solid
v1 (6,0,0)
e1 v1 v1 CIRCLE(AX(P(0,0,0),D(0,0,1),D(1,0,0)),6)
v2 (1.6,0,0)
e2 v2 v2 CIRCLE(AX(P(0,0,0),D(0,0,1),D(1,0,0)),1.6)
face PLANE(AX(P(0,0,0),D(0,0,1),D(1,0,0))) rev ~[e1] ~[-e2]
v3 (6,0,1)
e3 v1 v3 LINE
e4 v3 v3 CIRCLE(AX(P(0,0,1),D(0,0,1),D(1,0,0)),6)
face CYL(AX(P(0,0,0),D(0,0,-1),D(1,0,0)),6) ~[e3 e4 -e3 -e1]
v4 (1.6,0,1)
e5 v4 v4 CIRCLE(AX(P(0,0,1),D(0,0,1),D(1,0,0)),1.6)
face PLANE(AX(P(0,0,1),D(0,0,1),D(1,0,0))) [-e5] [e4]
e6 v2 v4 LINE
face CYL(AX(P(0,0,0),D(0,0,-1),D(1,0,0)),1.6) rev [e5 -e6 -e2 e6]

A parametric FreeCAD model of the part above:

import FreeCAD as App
import Part
import Sketcher

V = App.Vector

doc = App.newDocument("Part")
body = doc.addObject("PartDesign::Body", "Body")

# Sketch on XY plane
sketch1 = body.newObject("Sketcher::SketchObject", "Sketch")
sketch1.AttachmentSupport = (doc.getObject("XY_Plane"), [""])
sketch1.MapMode = "FlatFace"
sketch1.addGeometry(Part.Circle(V(0, 0, 0), V(0, 0, 1), 6), False)
sketch1.addGeometry(Part.Circle(V(0, 0, 0), V(0, 0, 1), 1.6), False)
sketch1.addConstraint(Sketcher.Constraint("Coincident", 0, 3, -1, 1))
sketch1.addConstraint(Sketcher.Constraint("Coincident", 1, 3, -1, 1))
sketch1.addConstraint(Sketcher.Constraint("Diameter", 0, 12.0))
sketch1.addConstraint(Sketcher.Constraint("Diameter", 1, 3.2))
pad1 = body.newObject("PartDesign::Pad", "Pad")
pad1.Profile = sketch1
pad1.Length = 1

doc.recompute()
